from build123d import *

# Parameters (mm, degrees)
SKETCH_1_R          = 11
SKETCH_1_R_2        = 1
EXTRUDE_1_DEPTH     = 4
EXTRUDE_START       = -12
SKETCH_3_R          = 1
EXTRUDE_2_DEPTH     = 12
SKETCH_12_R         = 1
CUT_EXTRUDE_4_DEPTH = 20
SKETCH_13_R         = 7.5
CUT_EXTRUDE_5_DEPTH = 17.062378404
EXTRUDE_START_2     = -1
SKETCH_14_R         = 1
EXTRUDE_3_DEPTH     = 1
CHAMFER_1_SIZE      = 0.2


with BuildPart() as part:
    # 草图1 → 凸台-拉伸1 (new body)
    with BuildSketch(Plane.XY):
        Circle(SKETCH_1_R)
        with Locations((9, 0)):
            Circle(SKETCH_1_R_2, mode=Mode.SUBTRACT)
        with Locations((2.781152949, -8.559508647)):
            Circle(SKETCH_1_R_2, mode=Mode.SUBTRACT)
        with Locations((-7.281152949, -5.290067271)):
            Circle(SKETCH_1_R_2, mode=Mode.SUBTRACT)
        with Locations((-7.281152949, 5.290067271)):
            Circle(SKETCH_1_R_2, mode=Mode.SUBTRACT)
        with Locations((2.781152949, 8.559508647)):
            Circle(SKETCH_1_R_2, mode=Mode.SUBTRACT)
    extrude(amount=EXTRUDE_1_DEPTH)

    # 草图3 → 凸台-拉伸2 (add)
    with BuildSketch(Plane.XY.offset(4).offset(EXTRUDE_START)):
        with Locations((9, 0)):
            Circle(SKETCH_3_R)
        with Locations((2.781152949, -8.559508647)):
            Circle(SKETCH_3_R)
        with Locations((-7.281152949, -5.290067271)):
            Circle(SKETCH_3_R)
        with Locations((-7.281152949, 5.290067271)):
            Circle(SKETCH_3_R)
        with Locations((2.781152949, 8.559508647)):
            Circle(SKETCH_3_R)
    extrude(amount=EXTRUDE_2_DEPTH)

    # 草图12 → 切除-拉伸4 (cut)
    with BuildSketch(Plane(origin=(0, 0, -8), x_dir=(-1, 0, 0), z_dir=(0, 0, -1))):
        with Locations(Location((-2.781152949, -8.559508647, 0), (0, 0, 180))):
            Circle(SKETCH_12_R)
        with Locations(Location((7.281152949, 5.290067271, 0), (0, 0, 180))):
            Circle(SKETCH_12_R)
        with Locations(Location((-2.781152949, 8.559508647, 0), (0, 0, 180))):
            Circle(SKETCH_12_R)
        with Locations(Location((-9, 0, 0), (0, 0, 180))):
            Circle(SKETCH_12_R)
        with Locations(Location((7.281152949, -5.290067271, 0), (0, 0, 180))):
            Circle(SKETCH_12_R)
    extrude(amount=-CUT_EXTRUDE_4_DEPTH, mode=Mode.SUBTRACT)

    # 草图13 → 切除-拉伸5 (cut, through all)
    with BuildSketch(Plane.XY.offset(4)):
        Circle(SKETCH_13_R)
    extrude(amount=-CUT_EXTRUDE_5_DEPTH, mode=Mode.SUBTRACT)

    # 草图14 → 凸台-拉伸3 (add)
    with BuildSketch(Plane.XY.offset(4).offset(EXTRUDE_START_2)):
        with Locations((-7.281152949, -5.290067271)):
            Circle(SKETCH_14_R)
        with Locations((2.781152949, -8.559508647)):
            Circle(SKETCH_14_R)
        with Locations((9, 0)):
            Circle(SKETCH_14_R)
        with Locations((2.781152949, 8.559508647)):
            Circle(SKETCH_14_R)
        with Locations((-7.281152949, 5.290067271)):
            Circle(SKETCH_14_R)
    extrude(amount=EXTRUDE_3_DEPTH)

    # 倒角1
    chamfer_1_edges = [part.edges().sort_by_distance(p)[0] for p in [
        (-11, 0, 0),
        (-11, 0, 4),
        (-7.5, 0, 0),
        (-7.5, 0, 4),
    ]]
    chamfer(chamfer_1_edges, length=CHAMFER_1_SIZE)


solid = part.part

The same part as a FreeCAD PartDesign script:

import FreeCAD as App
import Part
import Sketcher
Q = App.Units.Quantity


def edges_at(feature, points):
    """Names of the edges that pass closest to the given points."""
    edges = feature.Shape.Edges
    near = lambda p: min(range(len(edges)), key=lambda i: edges[i].distToShape(Part.Vertex(*p))[0])
    return sorted({f"Edge{near(p) + 1}" for p in points})

doc = App.newDocument("Part")
body = doc.addObject("PartDesign::Body", "Body")

# Sketch on XY plane
sketch1 = doc.addObject("Sketcher::SketchObject", "Sketch")
body.addObject(sketch1)
sketch1.AttachmentSupport = (doc.XY_Plane, [""])
sketch1.MapMode = "FlatFace"
sketch1.addGeometry(Part.Circle(App.Vector(0, 0, 0), App.Vector(0, 0, 1), 11), False)
sketch1.addGeometry(Part.Circle(App.Vector(-7.3, -5.3, 0), App.Vector(0, 0, 1), 1), False)
sketch1.addGeometry(Part.Circle(App.Vector(2.8, -8.6, 0), App.Vector(0, 0, 1), 1), False)
sketch1.addGeometry(Part.Circle(App.Vector(-7.3, 5.3, 0), App.Vector(0, 0, 1), 1), False)
sketch1.addGeometry(Part.Circle(App.Vector(9, 0, 0), App.Vector(0, 0, 1), 1), False)
sketch1.addGeometry(Part.Circle(App.Vector(2.8, 8.6, 0), App.Vector(0, 0, 1), 1), False)
sketch1.addConstraint(Sketcher.Constraint("Coincident", 0, 3, -1, 1))
sketch1.addConstraint(Sketcher.Constraint("Equal", 1, 2))
sketch1.addConstraint(Sketcher.Constraint("Equal", 2, 3))
sketch1.addConstraint(Sketcher.Constraint("Equal", 3, 4))
sketch1.addConstraint(Sketcher.Constraint("Equal", 4, 5))
sketch1.addConstraint(Sketcher.Constraint("Symmetric", 1, 3, 3, 3, -1))
sketch1.addConstraint(Sketcher.Constraint("Symmetric", 2, 3, 5, 3, -1))
sketch1.addConstraint(Sketcher.Constraint("PointOnObject", 4, 3, -1))
sketch1.addConstraint(Sketcher.Constraint("Diameter", 0, Q("22 mm")))
sketch1.addConstraint(Sketcher.Constraint("Diameter", 1, Q("2 mm")))
sketch1.addConstraint(Sketcher.Constraint("DistanceX", -1, 1, 4, 3, Q("9 mm")))
sketch1.addConstraint(Sketcher.Constraint("DistanceY", 2, 3, -1, 1, Q("8.559509 mm")))
sketch1.addConstraint(Sketcher.Constraint("DistanceY", 2, 3, 1, 3, Q("3.269441 mm")))
sketch1.addConstraint(Sketcher.Constraint("DistanceX", 1, 3, -1, 1, Q("7.281153 mm")))
sketch1.addConstraint(Sketcher.Constraint("DistanceX", -1, 1, 2, 3, Q("2.781153 mm")))
pad1 = doc.addObject("PartDesign::Pad", "Pad")
body.addObject(pad1)
pad1.Profile = sketch1
pad1.Length = 4

# Sketch on XY plane
sketch2 = doc.addObject("Sketcher::SketchObject", "Sketch001")
body.addObject(sketch2)
sketch2.AttachmentSupport = (doc.XY_Plane, [""])
sketch2.MapMode = "FlatFace"
sketch2.AttachmentOffset = App.Placement(App.Vector(0, 0, -8), App.Rotation())
sketch2.addGeometry(Part.Circle(App.Vector(9, 0, 0), App.Vector(0, 0, 1), 1), False)
sketch2.addGeometry(Part.Circle(App.Vector(2.8, -8.6, 0), App.Vector(0, 0, 1), 1), False)
sketch2.addGeometry(Part.Circle(App.Vector(-7.3, -5.3, 0), App.Vector(0, 0, 1), 1), False)
sketch2.addGeometry(Part.Circle(App.Vector(-7.3, 5.3, 0), App.Vector(0, 0, 1), 1), False)
sketch2.addGeometry(Part.Circle(App.Vector(2.8, 8.6, 0), App.Vector(0, 0, 1), 1), False)
sketch2.addConstraint(Sketcher.Constraint("Equal", 0, 1))
sketch2.addConstraint(Sketcher.Constraint("Equal", 1, 2))
sketch2.addConstraint(Sketcher.Constraint("Equal", 2, 3))
sketch2.addConstraint(Sketcher.Constraint("Equal", 3, 4))
sketch2.addConstraint(Sketcher.Constraint("Symmetric", 2, 3, 3, 3, -1))
sketch2.addConstraint(Sketcher.Constraint("Symmetric", 1, 3, 4, 3, -1))
sketch2.addConstraint(Sketcher.Constraint("PointOnObject", 0, 3, -1))
sketch2.addConstraint(Sketcher.Constraint("Diameter", 0, Q("2 mm")))
sketch2.addConstraint(Sketcher.Constraint("DistanceX", -1, 1, 0, 3, Q("9 mm")))
sketch2.addConstraint(Sketcher.Constraint("DistanceY", 1, 3, -1, 1, Q("8.559509 mm")))
sketch2.addConstraint(Sketcher.Constraint("DistanceY", 1, 3, 2, 3, Q("3.269441 mm")))
sketch2.addConstraint(Sketcher.Constraint("DistanceX", -1, 1, 1, 3, Q("2.781153 mm")))
sketch2.addConstraint(Sketcher.Constraint("DistanceX", 2, 3, -1, 1, Q("7.281153 mm")))
pad2 = doc.addObject("PartDesign::Pad", "Pad001")
body.addObject(pad2)
pad2.Profile = sketch2
pad2.Length = 12

# Sketch on XY plane
sketch3 = doc.addObject("Sketcher::SketchObject", "Sketch002")
body.addObject(sketch3)
sketch3.AttachmentSupport = (doc.XY_Plane, [""])
sketch3.MapMode = "FlatFace"
sketch3.AttachmentOffset = App.Placement(App.Vector(0, 0, -8), App.Rotation())
sketch3.addGeometry(Part.Circle(App.Vector(2.8, -8.6, 0), App.Vector(0, 0, 1), 1), False)
sketch3.addGeometry(Part.Circle(App.Vector(-7.3, 5.3, 0), App.Vector(0, 0, 1), 1), False)
sketch3.addGeometry(Part.Circle(App.Vector(2.8, 8.6, 0), App.Vector(0, 0, 1), 1), False)
sketch3.addGeometry(Part.Circle(App.Vector(9, 0, 0), App.Vector(0, 0, 1), 1), False)
sketch3.addGeometry(Part.Circle(App.Vector(-7.3, -5.3, 0), App.Vector(0, 0, 1), 1), False)
sketch3.addConstraint(Sketcher.Constraint("Equal", 0, 1))
sketch3.addConstraint(Sketcher.Constraint("Equal", 1, 2))
sketch3.addConstraint(Sketcher.Constraint("Equal", 2, 3))
sketch3.addConstraint(Sketcher.Constraint("Equal", 3, 4))
sketch3.addConstraint(Sketcher.Constraint("Symmetric", 0, 3, 2, 3, -1))
sketch3.addConstraint(Sketcher.Constraint("Symmetric", 1, 3, 4, 3, -1))
sketch3.addConstraint(Sketcher.Constraint("PointOnObject", 3, 3, -1))
sketch3.addConstraint(Sketcher.Constraint("Diameter", 0, Q("2 mm")))
sketch3.addConstraint(Sketcher.Constraint("DistanceX", -1, 1, 3, 3, Q("9 mm")))
sketch3.addConstraint(Sketcher.Constraint("DistanceY", 0, 3, -1, 1, Q("8.559509 mm")))
sketch3.addConstraint(Sketcher.Constraint("DistanceY", 1, 3, 2, 3, Q("3.269441 mm")))
sketch3.addConstraint(Sketcher.Constraint("DistanceX", -1, 1, 0, 3, Q("2.781153 mm")))
sketch3.addConstraint(Sketcher.Constraint("DistanceX", 1, 3, -1, 1, Q("7.281153 mm")))
pocket1 = doc.addObject("PartDesign::Pocket", "Pocket")
body.addObject(pocket1)
pocket1.Profile = sketch3
pocket1.Length = 20
pocket1.Reversed = True

# Sketch on XY plane
sketch4 = doc.addObject("Sketcher::SketchObject", "Sketch003")
body.addObject(sketch4)
sketch4.AttachmentSupport = (doc.XY_Plane, [""])
sketch4.MapMode = "FlatFace"
sketch4.AttachmentOffset = App.Placement(App.Vector(0, 0, 4), App.Rotation())
sketch4.addGeometry(Part.Circle(App.Vector(0, 0, 0), App.Vector(0, 0, 1), 8), False)
sketch4.addConstraint(Sketcher.Constraint("Coincident", 0, 3, -1, 1))
sketch4.addConstraint(Sketcher.Constraint("Diameter", 0, Q("15 mm")))
pocket2 = doc.addObject("PartDesign::Pocket", "Pocket001")
body.addObject(pocket2)
pocket2.Profile = sketch4
pocket2.Type = "ThroughAll"

# Sketch on XY plane
sketch5 = doc.addObject("Sketcher::SketchObject", "Sketch004")
body.addObject(sketch5)
sketch5.AttachmentSupport = (doc.XY_Plane, [""])
sketch5.MapMode = "FlatFace"
sketch5.AttachmentOffset = App.Placement(App.Vector(0, 0, 3), App.Rotation())
sketch5.addGeometry(Part.Circle(App.Vector(-7.3, -5.3, 0), App.Vector(0, 0, 1), 1), False)
sketch5.addGeometry(Part.Circle(App.Vector(2.8, -8.6, 0), App.Vector(0, 0, 1), 1), False)
sketch5.addGeometry(Part.Circle(App.Vector(9, 0, 0), App.Vector(0, 0, 1), 1), False)
sketch5.addGeometry(Part.Circle(App.Vector(2.8, 8.6, 0), App.Vector(0, 0, 1), 1), False)
sketch5.addGeometry(Part.Circle(App.Vector(-7.3, 5.3, 0), App.Vector(0, 0, 1), 1), False)
sketch5.addConstraint(Sketcher.Constraint("Equal", 0, 1))
sketch5.addConstraint(Sketcher.Constraint("Equal", 1, 2))
sketch5.addConstraint(Sketcher.Constraint("Equal", 2, 3))
sketch5.addConstraint(Sketcher.Constraint("Equal", 3, 4))
sketch5.addConstraint(Sketcher.Constraint("Symmetric", 1, 3, 3, 3, -1))
sketch5.addConstraint(Sketcher.Constraint("Symmetric", 0, 3, 4, 3, -1))
sketch5.addConstraint(Sketcher.Constraint("PointOnObject", 2, 3, -1))
sketch5.addConstraint(Sketcher.Constraint("Diameter", 0, Q("2 mm")))
sketch5.addConstraint(Sketcher.Constraint("DistanceX", -1, 1, 2, 3, Q("9 mm")))
sketch5.addConstraint(Sketcher.Constraint("DistanceY", 1, 3, -1, 1, Q("8.559509 mm")))
sketch5.addConstraint(Sketcher.Constraint("DistanceY", 1, 3, 0, 3, Q("3.269441 mm")))
sketch5.addConstraint(Sketcher.Constraint("DistanceX", 0, 3, -1, 1, Q("7.281153 mm")))
sketch5.addConstraint(Sketcher.Constraint("DistanceX", -1, 1, 1, 3, Q("2.781153 mm")))
pad3 = doc.addObject("PartDesign::Pad", "Pad002")
body.addObject(pad3)
pad3.Profile = sketch5
pad3.Length = 1
doc.recompute()

chamfer = doc.addObject("PartDesign::Chamfer", "Chamfer")
body.addObject(chamfer)
chamfer.Base = (pad3, edges_at(pad3, [
    (-11, 0, 0),
    (-11, 0, 4),
    (-7.5, 0, 0),
    (-7.5, 0, 4),
]))
chamfer.Size = 0.2

doc.recompute()
